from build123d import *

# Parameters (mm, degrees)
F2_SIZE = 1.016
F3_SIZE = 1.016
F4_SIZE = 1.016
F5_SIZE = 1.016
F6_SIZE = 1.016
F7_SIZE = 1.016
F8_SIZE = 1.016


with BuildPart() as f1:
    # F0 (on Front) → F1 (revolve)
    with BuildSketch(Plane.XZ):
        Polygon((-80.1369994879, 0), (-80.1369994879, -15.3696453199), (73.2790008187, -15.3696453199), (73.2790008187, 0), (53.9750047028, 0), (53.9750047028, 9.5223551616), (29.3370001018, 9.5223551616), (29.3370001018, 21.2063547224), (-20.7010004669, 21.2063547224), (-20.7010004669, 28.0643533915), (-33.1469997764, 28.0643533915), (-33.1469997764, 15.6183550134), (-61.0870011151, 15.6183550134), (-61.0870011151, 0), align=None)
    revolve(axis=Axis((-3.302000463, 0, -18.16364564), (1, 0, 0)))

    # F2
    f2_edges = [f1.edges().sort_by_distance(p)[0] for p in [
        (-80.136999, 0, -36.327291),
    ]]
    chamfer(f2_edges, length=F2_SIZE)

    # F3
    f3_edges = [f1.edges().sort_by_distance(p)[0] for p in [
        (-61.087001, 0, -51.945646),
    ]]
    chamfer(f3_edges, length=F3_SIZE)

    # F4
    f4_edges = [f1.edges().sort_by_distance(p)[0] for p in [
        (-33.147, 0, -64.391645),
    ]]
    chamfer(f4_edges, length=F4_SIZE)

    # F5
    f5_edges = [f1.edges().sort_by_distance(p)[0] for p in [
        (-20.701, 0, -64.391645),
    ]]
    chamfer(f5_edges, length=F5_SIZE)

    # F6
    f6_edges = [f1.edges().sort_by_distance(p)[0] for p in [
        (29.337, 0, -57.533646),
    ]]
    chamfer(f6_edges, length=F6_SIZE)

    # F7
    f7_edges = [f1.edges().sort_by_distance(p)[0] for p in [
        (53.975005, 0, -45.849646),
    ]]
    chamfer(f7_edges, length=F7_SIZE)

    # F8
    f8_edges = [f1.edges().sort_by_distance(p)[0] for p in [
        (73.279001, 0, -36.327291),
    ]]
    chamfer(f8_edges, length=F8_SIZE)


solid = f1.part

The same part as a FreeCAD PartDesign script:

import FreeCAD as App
import Part
import Sketcher
from FreeCAD import Vector
Q = App.Units.Quantity


def edges_at(feature, points):
    """Names of the edges that pass closest to the given points."""
    edges = feature.Shape.Edges
    near = lambda p: min(range(len(edges)), key=lambda i: edges[i].distToShape(Part.Vertex(*p))[0])
    return sorted({f"Edge{near(p) + 1}" for p in points})

doc = App.newDocument("Part")
body = doc.addObject("PartDesign::Body", "Body")

sketch1 = doc.addObject("Sketcher::SketchObject", "Sketch")
body.addObject(sketch1)
sketch1.AttachmentSupport = (doc.XZ_Plane, [""])
sketch1.MapMode = "FlatFace"
sketch1.addGeometry([
    Part.LineSegment(Vector(-80, 0, 0), Vector(-80, -15, 0)),
    Part.LineSegment(Vector(-80, -15, 0), Vector(73, -15, 0)),
    Part.LineSegment(Vector(73, -15, 0), Vector(73, 0, 0)),
    Part.LineSegment(Vector(73, 0, 0), Vector(54, 0, 0)),
    Part.LineSegment(Vector(54, 0, 0), Vector(54, 10, 0)),
    Part.LineSegment(Vector(54, 10, 0), Vector(29, 10, 0)),
    Part.LineSegment(Vector(29, 10, 0), Vector(29, 21, 0)),
    Part.LineSegment(Vector(29, 21, 0), Vector(-21, 21, 0)),
    Part.LineSegment(Vector(-21, 21, 0), Vector(-21, 28, 0)),
    Part.LineSegment(Vector(-21, 28, 0), Vector(-33, 28, 0)),
    Part.LineSegment(Vector(-33, 28, 0), Vector(-33, 16, 0)),
    Part.LineSegment(Vector(-33, 16, 0), Vector(-61, 16, 0)),
    Part.LineSegment(Vector(-61, 16, 0), Vector(-61, 0, 0)),
    Part.LineSegment(Vector(-61, 0, 0), Vector(-80, 0, 0)),
], False)
sketch1.addGeometry(Part.LineSegment(Vector(-80, -18, 0), Vector(73, -18, 0)), True)
sketch1.addConstraint([
    Sketcher.Constraint("Coincident", 0, 2, 1, 1),
    Sketcher.Constraint("Coincident", 1, 2, 2, 1),
    Sketcher.Constraint("Coincident", 2, 2, 3, 1),
    Sketcher.Constraint("Coincident", 3, 2, 4, 1),
    Sketcher.Constraint("Coincident", 4, 2, 5, 1),
    Sketcher.Constraint("Coincident", 5, 2, 6, 1),
    Sketcher.Constraint("Coincident", 6, 2, 7, 1),
    Sketcher.Constraint("Coincident", 7, 2, 8, 1),
    Sketcher.Constraint("Coincident", 8, 2, 9, 1),
    Sketcher.Constraint("Coincident", 9, 2, 10, 1),
    Sketcher.Constraint("Coincident", 10, 2, 11, 1),
    Sketcher.Constraint("Coincident", 11, 2, 12, 1),
    Sketcher.Constraint("Coincident", 12, 2, 13, 1),
    Sketcher.Constraint("Coincident", 13, 2, 0, 1),
    Sketcher.Constraint("Vertical", 0),
    Sketcher.Constraint("Horizontal", 1),
    Sketcher.Constraint("Vertical", 2),
    Sketcher.Constraint("Horizontal", 3),
    Sketcher.Constraint("Vertical", 4),
    Sketcher.Constraint("Horizontal", 5),
    Sketcher.Constraint("Vertical", 6),
    Sketcher.Constraint("Horizontal", 7),
    Sketcher.Constraint("Vertical", 8),
    Sketcher.Constraint("Horizontal", 9),
    Sketcher.Constraint("Vertical", 10),
    Sketcher.Constraint("Horizontal", 11),
    Sketcher.Constraint("Vertical", 12),
    Sketcher.Constraint("Horizontal", 13),
    Sketcher.Constraint("Horizontal", 14),
    Sketcher.Constraint("PointOnObject", 2, 2, -1),
    Sketcher.Constraint("PointOnObject", 12, 2, -1),
    Sketcher.Constraint("Vertical", 13, 2, 14, 1),
    Sketcher.Constraint("Vertical", 2, 2, 14, 2),
    Sketcher.Constraint("Equal", 9, 10),
    Sketcher.Constraint("DistanceX", 11, 2, 11, 1, Q("1.1000001 in")),
    Sketcher.Constraint("DistanceX", 1, 1, 1, 2, Q("6.04 in")),
    Sketcher.Constraint("DistanceX", 3, 2, 3, 1, Q("0.7599998 in")),
    Sketcher.Constraint("DistanceX", 5, 2, 5, 1, Q("0.9700002 in")),
    Sketcher.Constraint("DistanceX", 7, 2, 7, 1, Q("1.97 in")),
    Sketcher.Constraint("DistanceX", 9, 2, 9, 1, Q("0.49 in")),
    Sketcher.Constraint("DistanceY", 6, 1, 6, 2, Q("0.46 in")),
    Sketcher.Constraint("DistanceY", 8, 1, 8, 2, Q("0.2699999 in")),
    Sketcher.Constraint("DistanceY", 1, 2, 4, 2, Q("0.98 in")),
    Sketcher.Constraint("DistanceY", 14, 1, 0, 2, Q("0.11 in")),
    Sketcher.Constraint("DistanceX", 0, 2, -1, 1, Q("3.155 in")),
    Sketcher.Constraint("DistanceY", 0, 2, 0, 1, Q("15.369645 mm")),
])
revolution = doc.addObject("PartDesign::Revolution", "Revolution")
body.addObject(revolution)
revolution.Profile = sketch1
revolution.ReferenceAxis = (sketch1, ["Axis0"])
revolution.Angle = 360
doc.recompute()

chamfer = doc.addObject("PartDesign::Chamfer", "Chamfer")
body.addObject(chamfer)
chamfer.Base = (revolution, edges_at(revolution, [(-80.137, 0, -36.327)]))
chamfer.Size = Q("0.04 in")
doc.recompute()

chamfer2 = doc.addObject("PartDesign::Chamfer", "Chamfer001")
body.addObject(chamfer2)
chamfer2.Base = (chamfer, edges_at(chamfer, [(-61.087, 0, -51.946)]))
chamfer2.Size = Q("0.04 in")
doc.recompute()

chamfer3 = doc.addObject("PartDesign::Chamfer", "Chamfer002")
body.addObject(chamfer3)
chamfer3.Base = (chamfer2, edges_at(chamfer2, [(-33.147, 0, -64.392)]))
chamfer3.Size = Q("0.04 in")
doc.recompute()

chamfer4 = doc.addObject("PartDesign::Chamfer", "Chamfer003")
body.addObject(chamfer4)
chamfer4.Base = (chamfer3, edges_at(chamfer3, [(-20.701, 0, -64.392)]))
chamfer4.Size = Q("0.04 in")
doc.recompute()

chamfer5 = doc.addObject("PartDesign::Chamfer", "Chamfer004")
body.addObject(chamfer5)
chamfer5.Base = (chamfer4, edges_at(chamfer4, [(29.337, 0, -57.534)]))
chamfer5.Size = Q("0.04 in")
doc.recompute()

chamfer6 = doc.addObject("PartDesign::Chamfer", "Chamfer005")
body.addObject(chamfer6)
chamfer6.Base = (chamfer5, edges_at(chamfer5, [(53.975, 0, -45.85)]))
chamfer6.Size = Q("0.04 in")
doc.recompute()

chamfer7 = doc.addObject("PartDesign::Chamfer", "Chamfer006")
body.addObject(chamfer7)
chamfer7.Base = (chamfer6, edges_at(chamfer6, [(73.279, 0, -36.327)]))
chamfer7.Size = Q("0.04 in")

doc.recompute()
